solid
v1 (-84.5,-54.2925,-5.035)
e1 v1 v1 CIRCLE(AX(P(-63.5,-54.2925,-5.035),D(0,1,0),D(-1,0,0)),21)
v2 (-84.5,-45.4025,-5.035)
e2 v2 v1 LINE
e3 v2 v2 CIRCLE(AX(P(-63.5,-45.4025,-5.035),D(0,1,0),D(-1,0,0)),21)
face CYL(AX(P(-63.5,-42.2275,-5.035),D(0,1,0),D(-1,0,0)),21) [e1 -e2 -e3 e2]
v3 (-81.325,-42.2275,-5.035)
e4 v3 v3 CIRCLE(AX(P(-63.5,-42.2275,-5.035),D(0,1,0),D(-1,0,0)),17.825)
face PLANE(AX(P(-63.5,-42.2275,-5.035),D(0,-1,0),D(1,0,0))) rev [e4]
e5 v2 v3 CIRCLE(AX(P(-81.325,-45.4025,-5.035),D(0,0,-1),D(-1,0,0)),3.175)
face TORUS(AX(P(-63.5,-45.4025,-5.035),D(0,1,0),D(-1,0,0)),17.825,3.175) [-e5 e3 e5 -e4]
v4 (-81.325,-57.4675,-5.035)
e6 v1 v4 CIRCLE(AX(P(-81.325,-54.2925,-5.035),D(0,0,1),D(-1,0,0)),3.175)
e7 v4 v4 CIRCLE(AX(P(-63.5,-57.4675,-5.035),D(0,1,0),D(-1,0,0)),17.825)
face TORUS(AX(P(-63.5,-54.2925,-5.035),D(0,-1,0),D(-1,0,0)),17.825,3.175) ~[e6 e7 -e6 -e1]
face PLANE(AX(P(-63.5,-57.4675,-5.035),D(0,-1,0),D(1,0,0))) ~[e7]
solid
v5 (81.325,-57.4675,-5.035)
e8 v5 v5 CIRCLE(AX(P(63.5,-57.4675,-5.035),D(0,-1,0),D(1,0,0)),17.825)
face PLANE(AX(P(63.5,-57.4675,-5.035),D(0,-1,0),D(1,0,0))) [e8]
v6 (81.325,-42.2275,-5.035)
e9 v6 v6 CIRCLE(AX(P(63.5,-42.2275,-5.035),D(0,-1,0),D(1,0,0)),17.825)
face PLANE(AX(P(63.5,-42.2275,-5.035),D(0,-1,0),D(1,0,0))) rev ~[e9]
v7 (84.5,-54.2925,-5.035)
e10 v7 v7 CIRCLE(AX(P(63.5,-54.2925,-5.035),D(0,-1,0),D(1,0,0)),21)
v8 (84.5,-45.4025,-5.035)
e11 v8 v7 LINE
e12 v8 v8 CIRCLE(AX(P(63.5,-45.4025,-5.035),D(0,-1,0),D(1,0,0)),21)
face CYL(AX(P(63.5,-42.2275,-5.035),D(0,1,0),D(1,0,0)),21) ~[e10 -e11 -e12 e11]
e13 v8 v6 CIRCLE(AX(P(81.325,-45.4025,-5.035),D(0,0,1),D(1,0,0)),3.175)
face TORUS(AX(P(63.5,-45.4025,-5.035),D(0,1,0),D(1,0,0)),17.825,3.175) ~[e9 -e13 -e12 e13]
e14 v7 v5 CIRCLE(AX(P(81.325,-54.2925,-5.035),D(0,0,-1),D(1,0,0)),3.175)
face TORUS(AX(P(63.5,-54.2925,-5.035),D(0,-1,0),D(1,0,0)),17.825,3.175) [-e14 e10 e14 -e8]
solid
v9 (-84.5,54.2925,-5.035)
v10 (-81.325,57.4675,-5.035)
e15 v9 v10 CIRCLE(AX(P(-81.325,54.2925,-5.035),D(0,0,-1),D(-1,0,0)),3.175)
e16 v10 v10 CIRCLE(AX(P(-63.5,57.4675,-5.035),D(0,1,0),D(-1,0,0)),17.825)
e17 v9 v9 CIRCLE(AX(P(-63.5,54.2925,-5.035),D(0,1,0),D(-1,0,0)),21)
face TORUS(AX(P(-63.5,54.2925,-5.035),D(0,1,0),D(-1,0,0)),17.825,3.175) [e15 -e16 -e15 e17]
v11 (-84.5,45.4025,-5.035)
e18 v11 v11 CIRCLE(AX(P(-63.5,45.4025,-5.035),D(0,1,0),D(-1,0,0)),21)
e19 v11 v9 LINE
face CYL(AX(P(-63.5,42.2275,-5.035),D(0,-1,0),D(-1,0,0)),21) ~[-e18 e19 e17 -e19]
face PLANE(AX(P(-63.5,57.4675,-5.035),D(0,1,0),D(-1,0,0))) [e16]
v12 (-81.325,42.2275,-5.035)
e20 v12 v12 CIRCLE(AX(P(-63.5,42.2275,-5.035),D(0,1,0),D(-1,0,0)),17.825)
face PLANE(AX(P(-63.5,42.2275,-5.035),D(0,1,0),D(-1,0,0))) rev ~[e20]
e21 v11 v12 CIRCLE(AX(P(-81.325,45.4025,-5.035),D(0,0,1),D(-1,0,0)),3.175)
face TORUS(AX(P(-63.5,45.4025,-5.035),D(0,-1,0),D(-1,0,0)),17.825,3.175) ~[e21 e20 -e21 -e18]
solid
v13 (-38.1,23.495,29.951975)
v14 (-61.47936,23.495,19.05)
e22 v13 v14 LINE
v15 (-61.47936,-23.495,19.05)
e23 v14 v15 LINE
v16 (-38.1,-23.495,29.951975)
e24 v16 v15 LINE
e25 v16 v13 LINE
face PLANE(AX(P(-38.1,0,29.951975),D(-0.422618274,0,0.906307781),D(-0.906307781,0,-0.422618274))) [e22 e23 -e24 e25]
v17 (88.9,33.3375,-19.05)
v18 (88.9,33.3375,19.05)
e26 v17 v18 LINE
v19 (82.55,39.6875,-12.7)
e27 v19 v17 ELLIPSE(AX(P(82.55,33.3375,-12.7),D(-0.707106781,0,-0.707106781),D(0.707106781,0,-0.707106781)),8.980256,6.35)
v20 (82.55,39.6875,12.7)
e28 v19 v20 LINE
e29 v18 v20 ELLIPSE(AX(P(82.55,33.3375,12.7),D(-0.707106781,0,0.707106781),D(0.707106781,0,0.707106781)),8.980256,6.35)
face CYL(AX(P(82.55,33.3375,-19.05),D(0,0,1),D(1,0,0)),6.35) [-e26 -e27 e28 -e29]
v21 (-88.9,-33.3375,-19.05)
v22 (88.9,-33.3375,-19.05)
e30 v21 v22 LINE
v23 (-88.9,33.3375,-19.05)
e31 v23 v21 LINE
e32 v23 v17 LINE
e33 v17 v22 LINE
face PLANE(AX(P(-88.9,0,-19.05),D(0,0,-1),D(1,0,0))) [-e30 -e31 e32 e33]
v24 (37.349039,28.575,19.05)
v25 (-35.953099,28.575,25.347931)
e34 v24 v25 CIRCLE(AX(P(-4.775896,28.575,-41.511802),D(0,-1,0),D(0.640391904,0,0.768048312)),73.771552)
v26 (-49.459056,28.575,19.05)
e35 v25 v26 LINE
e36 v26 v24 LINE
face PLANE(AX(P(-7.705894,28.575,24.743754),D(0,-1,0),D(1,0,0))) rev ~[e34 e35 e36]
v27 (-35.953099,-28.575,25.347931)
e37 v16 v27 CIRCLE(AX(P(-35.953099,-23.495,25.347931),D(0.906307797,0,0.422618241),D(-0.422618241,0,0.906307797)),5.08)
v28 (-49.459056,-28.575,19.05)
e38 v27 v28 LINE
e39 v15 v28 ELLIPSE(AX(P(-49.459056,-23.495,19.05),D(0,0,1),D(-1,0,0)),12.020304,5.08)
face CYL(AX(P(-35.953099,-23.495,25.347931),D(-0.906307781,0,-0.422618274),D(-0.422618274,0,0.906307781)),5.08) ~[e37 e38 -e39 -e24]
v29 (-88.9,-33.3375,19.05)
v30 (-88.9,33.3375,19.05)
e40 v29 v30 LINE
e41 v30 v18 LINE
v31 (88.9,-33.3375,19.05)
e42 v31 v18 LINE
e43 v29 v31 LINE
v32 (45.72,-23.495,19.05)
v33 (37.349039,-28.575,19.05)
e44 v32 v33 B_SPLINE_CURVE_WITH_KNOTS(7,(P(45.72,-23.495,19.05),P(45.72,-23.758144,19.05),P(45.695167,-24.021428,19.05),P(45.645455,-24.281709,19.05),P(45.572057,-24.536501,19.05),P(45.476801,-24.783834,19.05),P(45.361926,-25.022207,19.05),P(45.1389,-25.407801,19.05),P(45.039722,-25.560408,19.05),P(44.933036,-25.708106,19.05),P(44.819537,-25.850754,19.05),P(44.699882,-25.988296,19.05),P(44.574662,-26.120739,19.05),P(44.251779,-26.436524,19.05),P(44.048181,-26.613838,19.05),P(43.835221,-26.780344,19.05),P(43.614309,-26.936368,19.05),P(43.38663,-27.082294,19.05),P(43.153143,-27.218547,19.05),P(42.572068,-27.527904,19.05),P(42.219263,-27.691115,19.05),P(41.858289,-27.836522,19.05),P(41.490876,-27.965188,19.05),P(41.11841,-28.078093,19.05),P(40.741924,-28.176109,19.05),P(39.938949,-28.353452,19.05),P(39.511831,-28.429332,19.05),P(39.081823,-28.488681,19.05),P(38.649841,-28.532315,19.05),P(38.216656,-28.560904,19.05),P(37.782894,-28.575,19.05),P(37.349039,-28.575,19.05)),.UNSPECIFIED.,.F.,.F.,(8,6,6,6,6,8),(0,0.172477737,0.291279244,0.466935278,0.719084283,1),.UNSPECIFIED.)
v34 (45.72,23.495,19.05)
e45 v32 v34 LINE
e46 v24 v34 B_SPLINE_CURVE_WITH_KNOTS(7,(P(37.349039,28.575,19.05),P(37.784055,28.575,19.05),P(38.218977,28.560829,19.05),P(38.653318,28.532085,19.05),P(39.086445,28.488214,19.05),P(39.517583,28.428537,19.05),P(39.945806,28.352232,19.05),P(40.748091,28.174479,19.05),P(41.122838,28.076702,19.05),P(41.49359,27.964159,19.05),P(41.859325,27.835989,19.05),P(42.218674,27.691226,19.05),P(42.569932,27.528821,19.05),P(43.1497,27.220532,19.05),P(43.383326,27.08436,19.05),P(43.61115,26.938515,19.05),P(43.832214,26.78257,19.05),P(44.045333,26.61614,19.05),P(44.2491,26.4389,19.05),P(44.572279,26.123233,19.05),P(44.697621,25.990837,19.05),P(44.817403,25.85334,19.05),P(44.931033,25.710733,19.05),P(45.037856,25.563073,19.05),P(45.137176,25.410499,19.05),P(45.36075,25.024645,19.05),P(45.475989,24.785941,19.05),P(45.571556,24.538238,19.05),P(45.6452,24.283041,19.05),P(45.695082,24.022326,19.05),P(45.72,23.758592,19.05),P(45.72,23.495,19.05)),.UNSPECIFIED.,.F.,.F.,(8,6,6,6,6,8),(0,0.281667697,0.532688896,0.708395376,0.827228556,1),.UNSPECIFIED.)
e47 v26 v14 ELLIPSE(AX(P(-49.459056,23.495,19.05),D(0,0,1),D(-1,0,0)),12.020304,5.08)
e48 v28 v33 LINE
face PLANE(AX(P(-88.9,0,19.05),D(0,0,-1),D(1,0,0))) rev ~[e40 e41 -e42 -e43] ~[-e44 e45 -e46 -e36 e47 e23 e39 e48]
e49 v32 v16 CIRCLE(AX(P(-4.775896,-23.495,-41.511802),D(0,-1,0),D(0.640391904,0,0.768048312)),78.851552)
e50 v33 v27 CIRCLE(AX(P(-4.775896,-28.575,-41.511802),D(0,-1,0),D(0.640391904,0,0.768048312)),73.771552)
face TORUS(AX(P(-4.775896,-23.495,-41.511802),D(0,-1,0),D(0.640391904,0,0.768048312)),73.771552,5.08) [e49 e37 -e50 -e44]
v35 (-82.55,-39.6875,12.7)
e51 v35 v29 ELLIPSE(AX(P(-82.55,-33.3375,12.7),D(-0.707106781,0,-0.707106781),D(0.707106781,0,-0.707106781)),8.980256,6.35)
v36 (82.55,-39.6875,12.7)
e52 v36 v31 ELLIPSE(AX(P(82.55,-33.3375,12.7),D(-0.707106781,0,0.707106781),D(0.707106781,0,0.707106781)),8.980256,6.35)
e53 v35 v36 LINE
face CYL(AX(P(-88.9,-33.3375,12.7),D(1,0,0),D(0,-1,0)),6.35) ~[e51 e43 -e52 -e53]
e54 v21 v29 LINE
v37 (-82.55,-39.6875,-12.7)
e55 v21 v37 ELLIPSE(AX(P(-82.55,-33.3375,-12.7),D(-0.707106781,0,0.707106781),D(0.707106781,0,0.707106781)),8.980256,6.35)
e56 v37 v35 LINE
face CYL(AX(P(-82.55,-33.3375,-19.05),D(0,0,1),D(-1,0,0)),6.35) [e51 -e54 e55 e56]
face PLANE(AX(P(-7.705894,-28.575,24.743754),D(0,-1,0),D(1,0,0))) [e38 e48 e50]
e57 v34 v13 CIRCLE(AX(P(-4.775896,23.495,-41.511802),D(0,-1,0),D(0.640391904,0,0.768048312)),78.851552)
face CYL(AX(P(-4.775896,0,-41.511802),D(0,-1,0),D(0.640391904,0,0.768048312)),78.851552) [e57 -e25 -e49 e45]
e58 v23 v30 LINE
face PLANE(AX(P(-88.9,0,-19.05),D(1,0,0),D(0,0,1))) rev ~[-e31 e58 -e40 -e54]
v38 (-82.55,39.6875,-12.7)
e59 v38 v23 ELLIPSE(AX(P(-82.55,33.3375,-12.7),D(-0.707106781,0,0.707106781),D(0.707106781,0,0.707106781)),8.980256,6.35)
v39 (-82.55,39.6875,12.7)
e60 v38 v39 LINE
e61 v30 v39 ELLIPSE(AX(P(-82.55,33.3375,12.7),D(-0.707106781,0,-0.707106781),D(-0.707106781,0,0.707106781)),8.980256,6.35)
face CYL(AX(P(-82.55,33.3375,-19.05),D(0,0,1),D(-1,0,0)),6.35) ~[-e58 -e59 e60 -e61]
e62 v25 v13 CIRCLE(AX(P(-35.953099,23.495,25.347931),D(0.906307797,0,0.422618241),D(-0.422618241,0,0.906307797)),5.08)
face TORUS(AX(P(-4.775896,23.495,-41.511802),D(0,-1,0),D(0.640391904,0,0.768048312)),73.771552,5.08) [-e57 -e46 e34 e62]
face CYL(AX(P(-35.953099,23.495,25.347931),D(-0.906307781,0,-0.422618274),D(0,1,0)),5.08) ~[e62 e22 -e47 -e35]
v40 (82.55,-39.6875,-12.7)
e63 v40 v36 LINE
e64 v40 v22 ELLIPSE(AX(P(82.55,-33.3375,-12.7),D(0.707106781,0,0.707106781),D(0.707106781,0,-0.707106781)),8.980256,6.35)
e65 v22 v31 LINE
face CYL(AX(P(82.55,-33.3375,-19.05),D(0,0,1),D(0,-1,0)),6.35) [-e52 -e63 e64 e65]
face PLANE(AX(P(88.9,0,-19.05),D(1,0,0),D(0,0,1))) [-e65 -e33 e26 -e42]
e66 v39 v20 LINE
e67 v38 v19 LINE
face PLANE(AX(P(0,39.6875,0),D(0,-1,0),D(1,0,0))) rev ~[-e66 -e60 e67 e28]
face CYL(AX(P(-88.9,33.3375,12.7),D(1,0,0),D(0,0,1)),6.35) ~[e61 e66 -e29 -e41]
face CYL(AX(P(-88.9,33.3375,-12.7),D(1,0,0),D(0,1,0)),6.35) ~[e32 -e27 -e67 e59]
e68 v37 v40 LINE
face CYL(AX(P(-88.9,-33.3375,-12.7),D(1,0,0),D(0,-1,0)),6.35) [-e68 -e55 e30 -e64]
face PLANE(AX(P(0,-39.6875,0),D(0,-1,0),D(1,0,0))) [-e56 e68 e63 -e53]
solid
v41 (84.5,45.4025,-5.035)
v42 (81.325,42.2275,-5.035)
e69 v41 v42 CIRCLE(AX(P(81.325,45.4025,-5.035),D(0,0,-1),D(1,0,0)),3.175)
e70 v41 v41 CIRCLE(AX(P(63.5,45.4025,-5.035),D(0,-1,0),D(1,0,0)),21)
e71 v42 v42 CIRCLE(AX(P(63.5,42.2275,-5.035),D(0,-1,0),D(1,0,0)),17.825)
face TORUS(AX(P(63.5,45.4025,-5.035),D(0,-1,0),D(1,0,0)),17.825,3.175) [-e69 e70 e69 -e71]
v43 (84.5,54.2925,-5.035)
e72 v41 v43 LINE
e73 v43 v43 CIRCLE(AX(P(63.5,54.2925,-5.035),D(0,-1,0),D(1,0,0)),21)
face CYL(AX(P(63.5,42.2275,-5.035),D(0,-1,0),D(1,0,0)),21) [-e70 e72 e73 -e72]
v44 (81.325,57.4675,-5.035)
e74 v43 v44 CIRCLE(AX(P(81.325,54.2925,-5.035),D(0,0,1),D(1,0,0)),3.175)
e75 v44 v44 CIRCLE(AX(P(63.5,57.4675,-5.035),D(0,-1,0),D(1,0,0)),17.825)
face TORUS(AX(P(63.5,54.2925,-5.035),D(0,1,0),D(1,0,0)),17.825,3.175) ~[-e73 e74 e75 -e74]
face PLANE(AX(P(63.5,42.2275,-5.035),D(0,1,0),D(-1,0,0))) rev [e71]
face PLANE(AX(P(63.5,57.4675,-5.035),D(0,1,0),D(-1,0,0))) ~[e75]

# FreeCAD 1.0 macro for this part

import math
import FreeCAD as App
import Part
import Sketcher
from FreeCAD import Vector
Q = App.Units.Quantity


def edges_at(feature, points):
    """Names of the edges that pass closest to the given points."""
    edges = feature.Shape.Edges
    near = lambda p: min(range(len(edges)), key=lambda i: edges[i].distToShape(Part.Vertex(*p))[0])
    return sorted({f"Edge{near(p) + 1}" for p in points})

doc = App.newDocument("Part")
body = doc.addObject("PartDesign::Body", "Body")

# Sketch on XZ plane
sketch1 = body.newObject("Sketcher::SketchObject", "Sketch")
sketch1.AttachmentSupport = (doc.getObject("XZ_Plane"), [""])
sketch1.MapMode = "FlatFace"
sketch1.addGeometry(Part.LineSegment(Vector(-88.9, 19.05, 0), Vector(-88.9, -19.05, 0)), False)
sketch1.addGeometry(Part.LineSegment(Vector(-88.9, -19.05, 0), Vector(88.9, -19.05, 0)), False)
sketch1.addGeometry(Part.LineSegment(Vector(88.9, -19.05, 0), Vector(88.9, 19.05, 0)), False)
sketch1.addGeometry(Part.LineSegment(Vector(88.9, 19.05, 0), Vector(-88.9, 19.05, 0)), False)
sketch1.addConstraint(Sketcher.Constraint("Coincident", 0, 2, 1, 1))
sketch1.addConstraint(Sketcher.Constraint("Coincident", 1, 2, 2, 1))
sketch1.addConstraint(Sketcher.Constraint("Coincident", 2, 2, 3, 1))
sketch1.addConstraint(Sketcher.Constraint("Coincident", 3, 2, 0, 1))
sketch1.addConstraint(Sketcher.Constraint("Vertical", 0))
sketch1.addConstraint(Sketcher.Constraint("Horizontal", 1))
sketch1.addConstraint(Sketcher.Constraint("Vertical", 2))
sketch1.addConstraint(Sketcher.Constraint("Horizontal", 3))
sketch1.addConstraint(Sketcher.Constraint("Symmetric", 0, 2, 2, 2, -1, 1))
sketch1.addConstraint(Sketcher.Constraint("DistanceX", 1, 1, 1, 2, Q("7 in")))
sketch1.addConstraint(Sketcher.Constraint("DistanceY", 0, 2, 0, 1, Q("1.5 in")))
pad1 = body.newObject("PartDesign::Pad", "Pad")
pad1.Profile = sketch1
pad1.Length = Q("3.125 in")
pad1.Midplane = True
doc.recompute()

fillet = body.newObject("PartDesign::Fillet", "Fillet")
fillet.Base = (pad1, edges_at(pad1, [
    (0, -39.688, 19.05),
    (-88.9, -39.688, 0),
    (0, -39.688, -19.05),
    (88.9, -39.688, 0),
    (0, 39.688, -19.05),
    (88.9, 39.688, 0),
    (-88.9, 39.688, 0),
    (0, 39.688, 19.05),
]))
fillet.Radius = Q("0.25 in")

# Sketch on XZ plane
sketch2 = body.newObject("Sketcher::SketchObject", "Sketch001")
sketch2.AttachmentSupport = (doc.getObject("XZ_Plane"), [""])
sketch2.MapMode = "FlatFace"
sketch2.addGeometry(Part.LineSegment(Vector(-38.1, 29.951975, 0), Vector(-61.47936, 19.05, 0)), False)
sketch2.addGeometry(Part.LineSegment(Vector(-61.47936, 19.05, 0), Vector(45.72, 19.05, 0)), False)
sketch2.addGeometry(Part.ArcOfCircle(Part.Circle(Vector(-4.775896, -41.511802, 0), Vector(0, 0, 1), 78.851552), math.radians(50.178951), math.radians(114.999999)), False)
sketch2.addConstraint(Sketcher.Constraint("Coincident", 0, 2, 1, 1))
sketch2.addConstraint(Sketcher.Constraint("Coincident", 1, 2, 2, 1))
sketch2.addConstraint(Sketcher.Constraint("Tangent", 2, 2, 0, 1))
sketch2.addConstraint(Sketcher.Constraint("Horizontal", 1))
sketch2.addConstraint(Sketcher.Constraint("Angle", 0, Q("-154.999999 deg")))
sketch2.addConstraint(Sketcher.Constraint("DistanceX", -1, 1, 1, 2, Q("1.8 in")))
sketch2.addConstraint(Sketcher.Constraint("DistanceX", 2, 2, -1, 1, Q("1.5 in")))
sketch2.addConstraint(Sketcher.Constraint("DistanceY", -1, 1, 0, 2, Q("0.75 in")))
sketch2.addConstraint(Sketcher.Constraint("Radius", 2, Q("78.851552 mm")))
pad2 = body.newObject("PartDesign::Pad", "Pad001")
pad2.Profile = sketch2
pad2.Length = Q("2.25 in")
pad2.Midplane = True
doc.recompute()

fillet2 = body.newObject("PartDesign::Fillet", "Fillet001")
fillet2.Base = (pad2, edges_at(pad2, [(5.394, -28.575, 36.681), (5.394, 28.575, 36.681)]))
fillet2.Radius = Q("0.2 in")
body2 = doc.addObject("PartDesign::Body", "Body001")

# Sketch on XZ plane
sketch3 = body2.newObject("Sketcher::SketchObject", "Sketch002")
sketch3.AttachmentSupport = (doc.getObject("XZ_Plane001"), [""])
sketch3.MapMode = "FlatFace"
sketch3.AttachmentOffset = App.Placement(Vector(0, 0, 1.6625 * 25.4), App.Rotation())
sketch3.addGeometry(Part.Circle(Vector(63.5, -5.035, 0), Vector(0, 0, 1), 21), False)
sketch3.addConstraint(Sketcher.Constraint("DistanceX", -1, 1, 0, 3, Q("2.5 in")))
sketch3.addConstraint(Sketcher.Constraint("Diameter", 0, Q("42 mm")))
sketch3.addConstraint(Sketcher.Constraint("DistanceY", 0, 3, -1, 1, Q("5.035 mm")))
pad3 = body2.newObject("PartDesign::Pad", "Pad002")
pad3.Profile = sketch3
pad3.Length = Q("0.6 in")
doc.recompute()

fillet3 = body2.newObject("PartDesign::Fillet", "Fillet002")
fillet3.Base = (pad3, edges_at(pad3, [(42.5, -57.468, -5.035), (42.5, -42.227, -5.035)]))
fillet3.Radius = Q("0.125 in")
body3 = doc.addObject("PartDesign::Body", "Body002")
doc.recompute()

mirroring = doc.addObject("Part::Mirroring", "Mirroring")
mirroring.Source = body2
mirroring.Base = Vector(0, 0, 0)
mirroring.Normal = Vector(0, -1, 0)
body3.BaseFeature = mirroring
doc.recompute()
body4 = doc.addObject("PartDesign::Body", "Body003")
doc.recompute()

mirroring2 = doc.addObject("Part::Mirroring", "Mirroring001")
mirroring2.Source = body2
mirroring2.Base = Vector(0, 0, 0)
mirroring2.Normal = Vector(1, 0, 0)
body4.BaseFeature = mirroring2
doc.recompute()
body5 = doc.addObject("PartDesign::Body", "Body004")
doc.recompute()

mirroring3 = doc.addObject("Part::Mirroring", "Mirroring002")
mirroring3.Source = body3
mirroring3.Base = Vector(0, 0, 0)
mirroring3.Normal = Vector(1, 0, 0)
body5.BaseFeature = mirroring3
doc.recompute()
mirroring.Visibility = False
mirroring2.Visibility = False
mirroring3.Visibility = False

doc.recompute()
